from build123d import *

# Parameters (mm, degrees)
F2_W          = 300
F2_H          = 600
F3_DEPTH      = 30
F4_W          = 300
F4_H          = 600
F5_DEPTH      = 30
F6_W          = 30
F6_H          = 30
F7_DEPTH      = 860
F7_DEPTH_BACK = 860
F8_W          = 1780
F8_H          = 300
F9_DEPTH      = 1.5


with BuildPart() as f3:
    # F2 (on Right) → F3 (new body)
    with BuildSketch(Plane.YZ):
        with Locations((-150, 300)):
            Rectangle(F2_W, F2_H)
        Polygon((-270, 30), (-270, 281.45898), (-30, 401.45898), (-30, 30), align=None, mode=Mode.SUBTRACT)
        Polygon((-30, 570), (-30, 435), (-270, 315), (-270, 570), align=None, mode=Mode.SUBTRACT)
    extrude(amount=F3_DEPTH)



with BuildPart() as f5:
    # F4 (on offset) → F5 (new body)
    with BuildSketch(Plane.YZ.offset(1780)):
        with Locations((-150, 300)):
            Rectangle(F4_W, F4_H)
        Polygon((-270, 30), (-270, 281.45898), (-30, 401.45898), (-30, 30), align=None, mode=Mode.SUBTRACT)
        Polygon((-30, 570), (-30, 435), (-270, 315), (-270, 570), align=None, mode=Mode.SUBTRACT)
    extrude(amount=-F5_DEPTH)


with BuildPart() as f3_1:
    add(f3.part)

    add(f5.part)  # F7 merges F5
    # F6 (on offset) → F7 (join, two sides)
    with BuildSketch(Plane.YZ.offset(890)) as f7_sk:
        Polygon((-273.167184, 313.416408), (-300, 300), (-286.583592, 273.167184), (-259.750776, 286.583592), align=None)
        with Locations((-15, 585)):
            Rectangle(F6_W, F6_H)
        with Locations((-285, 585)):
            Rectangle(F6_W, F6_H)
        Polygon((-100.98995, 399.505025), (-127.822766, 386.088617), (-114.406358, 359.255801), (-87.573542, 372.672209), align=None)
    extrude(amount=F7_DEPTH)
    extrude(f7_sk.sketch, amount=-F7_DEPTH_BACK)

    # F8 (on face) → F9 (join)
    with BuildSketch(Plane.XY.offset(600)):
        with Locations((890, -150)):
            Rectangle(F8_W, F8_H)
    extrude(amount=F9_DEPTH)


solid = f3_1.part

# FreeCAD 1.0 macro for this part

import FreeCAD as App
import Part
import Sketcher
from FreeCAD import Vector


def add_polygon(sketch, points):
    """Adds a closed chain of lines whose ends are joined by coincident constraints."""
    first, n = sketch.GeometryCount, len(points)
    for a, b in zip(points, points[1:] + points[:1]):
        sketch.addGeometry(Part.LineSegment(App.Vector(*a, 0), App.Vector(*b, 0)), False)
    for i in range(n):
        sketch.addConstraint(Sketcher.Constraint("Coincident", first + i, 2, first + (i + 1) % n, 1))

doc = App.newDocument("Part")
body = doc.addObject("PartDesign::Body", "Body")

# Sketch on YZ plane
sketch1 = body.newObject("Sketcher::SketchObject", "Sketch")
sketch1.AttachmentSupport = (doc.getObject("YZ_Plane"), [""])
sketch1.MapMode = "FlatFace"
add_polygon(sketch1, [(-300, 600), (-300, 0), (0, 0), (0, 600)])  # lines 0-3
add_polygon(sketch1, [(-30, 30), (-270, 30), (-270, 281), (-30, 401)])  # lines 4-7
add_polygon(sketch1, [(-270, 570), (-30, 570), (-30, 435), (-270, 315)])  # lines 8-11
sketch1.addConstraint(Sketcher.Constraint("Vertical", 0))
sketch1.addConstraint(Sketcher.Constraint("Horizontal", 1))
sketch1.addConstraint(Sketcher.Constraint("Vertical", 2))
sketch1.addConstraint(Sketcher.Constraint("Horizontal", 3))
sketch1.addConstraint(Sketcher.Constraint("Horizontal", 4))
sketch1.addConstraint(Sketcher.Constraint("Vertical", 5))
sketch1.addConstraint(Sketcher.Constraint("Vertical", 7))
sketch1.addConstraint(Sketcher.Constraint("Horizontal", 8))
sketch1.addConstraint(Sketcher.Constraint("Vertical", 9))
sketch1.addConstraint(Sketcher.Constraint("Vertical", 11))
sketch1.addConstraint(Sketcher.Constraint("Coincident", 1, 2, -1, 1))
sketch1.addConstraint(Sketcher.Constraint("Parallel", 6, 10))
sketch1.addConstraint(Sketcher.Constraint("Vertical", 7, 2, 8, 2))
sketch1.addConstraint(Sketcher.Constraint("Vertical", 5, 2, 10, 2))
sketch1.addConstraint(Sketcher.Constraint("DistanceX", 1, 1, 1, 2, 300.0))
sketch1.addConstraint(Sketcher.Constraint("DistanceX", 4, 2, 4, 1, 240.0))
sketch1.addConstraint(Sketcher.Constraint("DistanceY", 0, 2, 0, 1, 600.0))
sketch1.addConstraint(Sketcher.Constraint("DistanceY", 9, 2, 9, 1, 135.0))
sketch1.addConstraint(Sketcher.Constraint("DistanceY", 11, 1, 11, 2, 255.0))
sketch1.addConstraint(Sketcher.Constraint("DistanceX", 4, 2, -1, 1, 270.0))
sketch1.addConstraint(Sketcher.Constraint("DistanceY", -1, 1, 4, 2, 30.0))
sketch1.addConstraint(Sketcher.Constraint("DistanceY", -1, 1, 8, 2, 570.0))
sketch1.addConstraint(Sketcher.Constraint("DistanceY", 5, 1, 5, 2, 251.45898))
pad1 = body.newObject("PartDesign::Pad", "Pad")
pad1.Profile = sketch1
pad1.Length = 30
body2 = doc.addObject("PartDesign::Body", "Body001")

# Sketch on YZ plane
sketch2 = body2.newObject("Sketcher::SketchObject", "Sketch001")
sketch2.AttachmentSupport = (doc.getObject("YZ_Plane001"), [""])
sketch2.MapMode = "FlatFace"
sketch2.AttachmentOffset = App.Placement(Vector(0, 0, 1780), App.Rotation())
add_polygon(sketch2, [(-300, 600), (-300, 0), (0, 0), (0, 600)])  # lines 0-3
add_polygon(sketch2, [(-30, 30), (-270, 30), (-270, 281), (-30, 401)])  # lines 4-7
add_polygon(sketch2, [(-270, 570), (-30, 570), (-30, 435), (-270, 315)])  # lines 8-11
sketch2.addConstraint(Sketcher.Constraint("Vertical", 0))
sketch2.addConstraint(Sketcher.Constraint("Horizontal", 1))
sketch2.addConstraint(Sketcher.Constraint("Vertical", 2))
sketch2.addConstraint(Sketcher.Constraint("Horizontal", 3))
sketch2.addConstraint(Sketcher.Constraint("Horizontal", 4))
sketch2.addConstraint(Sketcher.Constraint("Vertical", 5))
sketch2.addConstraint(Sketcher.Constraint("Vertical", 7))
sketch2.addConstraint(Sketcher.Constraint("Horizontal", 8))
sketch2.addConstraint(Sketcher.Constraint("Vertical", 9))
sketch2.addConstraint(Sketcher.Constraint("Vertical", 11))
sketch2.addConstraint(Sketcher.Constraint("Coincident", 1, 2, -1, 1))
sketch2.addConstraint(Sketcher.Constraint("Parallel", 6, 10))
sketch2.addConstraint(Sketcher.Constraint("Vertical", 7, 2, 8, 2))
sketch2.addConstraint(Sketcher.Constraint("Vertical", 5, 2, 10, 2))
sketch2.addConstraint(Sketcher.Constraint("DistanceX", 1, 1, 1, 2, 300.0))
sketch2.addConstraint(Sketcher.Constraint("DistanceX", 4, 2, 4, 1, 240.0))
sketch2.addConstraint(Sketcher.Constraint("DistanceY", 0, 2, 0, 1, 600.0))
sketch2.addConstraint(Sketcher.Constraint("DistanceY", 9, 2, 9, 1, 135.0))
sketch2.addConstraint(Sketcher.Constraint("DistanceY", 11, 1, 11, 2, 255.0))
sketch2.addConstraint(Sketcher.Constraint("DistanceX", 4, 2, -1, 1, 270.0))
sketch2.addConstraint(Sketcher.Constraint("DistanceY", -1, 1, 4, 2, 30.0))
sketch2.addConstraint(Sketcher.Constraint("DistanceY", -1, 1, 8, 2, 570.0))
sketch2.addConstraint(Sketcher.Constraint("DistanceY", 5, 1, 5, 2, 251.45898))
pad2 = body2.newObject("PartDesign::Pad", "Pad001")
pad2.Profile = sketch2
pad2.Length = 30
pad2.Reversed = True
body.AllowCompound = True
doc.recompute()

boolean = body.newObject("PartDesign::Boolean", "Boolean")
boolean.Type = "Fuse"
boolean.addObjects([body2])

# Sketch on YZ plane
sketch3 = body.newObject("Sketcher::SketchObject", "Sketch002")
sketch3.AttachmentSupport = (doc.getObject("YZ_Plane"), [""])
sketch3.MapMode = "FlatFace"
sketch3.AttachmentOffset = App.Placement(Vector(0, 0, 890), App.Rotation())
add_polygon(sketch3, [(-273, 313), (-300, 300), (-287, 273), (-260, 287)])  # lines 0-3
add_polygon(sketch3, [(-30, 600), (-30, 570), (0, 570), (0, 600)])  # lines 4-7
add_polygon(sketch3, [(-300, 600), (-300, 570), (-270, 570), (-270, 600)])  # lines 8-11
add_polygon(sketch3, [(-101, 400), (-128, 386), (-114, 359), (-88, 373)])  # lines 12-15
sketch3.addConstraint(Sketcher.Constraint("Vertical", 4))
sketch3.addConstraint(Sketcher.Constraint("Horizontal", 5))
sketch3.addConstraint(Sketcher.Constraint("Vertical", 6))
sketch3.addConstraint(Sketcher.Constraint("Horizontal", 7))
sketch3.addConstraint(Sketcher.Constraint("Vertical", 8))
sketch3.addConstraint(Sketcher.Constraint("Horizontal", 9))
sketch3.addConstraint(Sketcher.Constraint("Vertical", 10))
sketch3.addConstraint(Sketcher.Constraint("Horizontal", 11))
sketch3.addConstraint(Sketcher.Constraint("PointOnObject", 5, 2, -2))
sketch3.addConstraint(Sketcher.Constraint("Perpendicular", 0, 1))
sketch3.addConstraint(Sketcher.Constraint("Perpendicular", 1, 2))
sketch3.addConstraint(Sketcher.Constraint("Perpendicular", 2, 3))
sketch3.addConstraint(Sketcher.Constraint("Perpendicular", 3, 12))
sketch3.addConstraint(Sketcher.Constraint("Perpendicular", 12, 13))
sketch3.addConstraint(Sketcher.Constraint("Perpendicular", 13, 14))
sketch3.addConstraint(Sketcher.Constraint("Perpendicular", 14, 15))
sketch3.addConstraint(Sketcher.Constraint("Horizontal", 5, 2, 8, 2))
sketch3.addConstraint(Sketcher.Constraint("Horizontal", 7, 2, 10, 2))
sketch3.addConstraint(Sketcher.Constraint("Vertical", 0, 2, 8, 2))
sketch3.addConstraint(Sketcher.Constraint("Equal", 7, 9))
sketch3.addConstraint(Sketcher.Constraint("Equal", 11, 4))
sketch3.addConstraint(Sketcher.Constraint("Equal", 0, 1))
sketch3.addConstraint(Sketcher.Constraint("Equal", 3, 12))
sketch3.addConstraint(Sketcher.Constraint("Equal", 12, 13))
sketch3.addConstraint(Sketcher.Constraint("DistanceX", 5, 1, 5, 2, 30.0))
sketch3.addConstraint(Sketcher.Constraint("Distance", 0, 30.0))
sketch3.addConstraint(Sketcher.Constraint("DistanceX", 0, 2, -1, 1, 300.0))
sketch3.addConstraint(Sketcher.Constraint("DistanceY", -1, 1, 0, 2, 300.0))
sketch3.addConstraint(Sketcher.Constraint("DistanceY", -1, 1, 4, 2, 570.0))
sketch3.addConstraint(Sketcher.Constraint("DistanceY", -1, 1, 13, 2, 359.255801))
sketch3.addConstraint(Sketcher.Constraint("DistanceX", 1, 2, -1, 1, 286.583592))
sketch3.addConstraint(Sketcher.Constraint("DistanceX", 15, 2, -1, 1, 100.98995))
pad3 = body.newObject("PartDesign::Pad", "Pad002")
pad3.Profile = sketch3
pad3.Type = "TwoLengths"
pad3.Length = 860
pad3.Length2 = 860

# Sketch on XY plane
sketch4 = body.newObject("Sketcher::SketchObject", "Sketch003")
sketch4.AttachmentSupport = (doc.getObject("XY_Plane"), [""])
sketch4.MapMode = "FlatFace"
sketch4.AttachmentOffset = App.Placement(Vector(0, 0, 600), App.Rotation())
add_polygon(sketch4, [(0, 0), (0, -300), (1780, -300), (1780, 0)])  # lines 0-3
sketch4.addConstraint(Sketcher.Constraint("Vertical", 0))
sketch4.addConstraint(Sketcher.Constraint("Horizontal", 1))
sketch4.addConstraint(Sketcher.Constraint("Vertical", 2))
sketch4.addConstraint(Sketcher.Constraint("Horizontal", 3))
sketch4.addConstraint(Sketcher.Constraint("Coincident", 3, 2, -1, 1))
sketch4.addConstraint(Sketcher.Constraint("DistanceX", 1, 1, 1, 2, 1780.0))
sketch4.addConstraint(Sketcher.Constraint("DistanceY", 0, 2, 0, 1, 300.0))
pad4 = body.newObject("PartDesign::Pad", "Pad003")
pad4.Profile = sketch4
pad4.Length = 1.5

doc.recompute()
